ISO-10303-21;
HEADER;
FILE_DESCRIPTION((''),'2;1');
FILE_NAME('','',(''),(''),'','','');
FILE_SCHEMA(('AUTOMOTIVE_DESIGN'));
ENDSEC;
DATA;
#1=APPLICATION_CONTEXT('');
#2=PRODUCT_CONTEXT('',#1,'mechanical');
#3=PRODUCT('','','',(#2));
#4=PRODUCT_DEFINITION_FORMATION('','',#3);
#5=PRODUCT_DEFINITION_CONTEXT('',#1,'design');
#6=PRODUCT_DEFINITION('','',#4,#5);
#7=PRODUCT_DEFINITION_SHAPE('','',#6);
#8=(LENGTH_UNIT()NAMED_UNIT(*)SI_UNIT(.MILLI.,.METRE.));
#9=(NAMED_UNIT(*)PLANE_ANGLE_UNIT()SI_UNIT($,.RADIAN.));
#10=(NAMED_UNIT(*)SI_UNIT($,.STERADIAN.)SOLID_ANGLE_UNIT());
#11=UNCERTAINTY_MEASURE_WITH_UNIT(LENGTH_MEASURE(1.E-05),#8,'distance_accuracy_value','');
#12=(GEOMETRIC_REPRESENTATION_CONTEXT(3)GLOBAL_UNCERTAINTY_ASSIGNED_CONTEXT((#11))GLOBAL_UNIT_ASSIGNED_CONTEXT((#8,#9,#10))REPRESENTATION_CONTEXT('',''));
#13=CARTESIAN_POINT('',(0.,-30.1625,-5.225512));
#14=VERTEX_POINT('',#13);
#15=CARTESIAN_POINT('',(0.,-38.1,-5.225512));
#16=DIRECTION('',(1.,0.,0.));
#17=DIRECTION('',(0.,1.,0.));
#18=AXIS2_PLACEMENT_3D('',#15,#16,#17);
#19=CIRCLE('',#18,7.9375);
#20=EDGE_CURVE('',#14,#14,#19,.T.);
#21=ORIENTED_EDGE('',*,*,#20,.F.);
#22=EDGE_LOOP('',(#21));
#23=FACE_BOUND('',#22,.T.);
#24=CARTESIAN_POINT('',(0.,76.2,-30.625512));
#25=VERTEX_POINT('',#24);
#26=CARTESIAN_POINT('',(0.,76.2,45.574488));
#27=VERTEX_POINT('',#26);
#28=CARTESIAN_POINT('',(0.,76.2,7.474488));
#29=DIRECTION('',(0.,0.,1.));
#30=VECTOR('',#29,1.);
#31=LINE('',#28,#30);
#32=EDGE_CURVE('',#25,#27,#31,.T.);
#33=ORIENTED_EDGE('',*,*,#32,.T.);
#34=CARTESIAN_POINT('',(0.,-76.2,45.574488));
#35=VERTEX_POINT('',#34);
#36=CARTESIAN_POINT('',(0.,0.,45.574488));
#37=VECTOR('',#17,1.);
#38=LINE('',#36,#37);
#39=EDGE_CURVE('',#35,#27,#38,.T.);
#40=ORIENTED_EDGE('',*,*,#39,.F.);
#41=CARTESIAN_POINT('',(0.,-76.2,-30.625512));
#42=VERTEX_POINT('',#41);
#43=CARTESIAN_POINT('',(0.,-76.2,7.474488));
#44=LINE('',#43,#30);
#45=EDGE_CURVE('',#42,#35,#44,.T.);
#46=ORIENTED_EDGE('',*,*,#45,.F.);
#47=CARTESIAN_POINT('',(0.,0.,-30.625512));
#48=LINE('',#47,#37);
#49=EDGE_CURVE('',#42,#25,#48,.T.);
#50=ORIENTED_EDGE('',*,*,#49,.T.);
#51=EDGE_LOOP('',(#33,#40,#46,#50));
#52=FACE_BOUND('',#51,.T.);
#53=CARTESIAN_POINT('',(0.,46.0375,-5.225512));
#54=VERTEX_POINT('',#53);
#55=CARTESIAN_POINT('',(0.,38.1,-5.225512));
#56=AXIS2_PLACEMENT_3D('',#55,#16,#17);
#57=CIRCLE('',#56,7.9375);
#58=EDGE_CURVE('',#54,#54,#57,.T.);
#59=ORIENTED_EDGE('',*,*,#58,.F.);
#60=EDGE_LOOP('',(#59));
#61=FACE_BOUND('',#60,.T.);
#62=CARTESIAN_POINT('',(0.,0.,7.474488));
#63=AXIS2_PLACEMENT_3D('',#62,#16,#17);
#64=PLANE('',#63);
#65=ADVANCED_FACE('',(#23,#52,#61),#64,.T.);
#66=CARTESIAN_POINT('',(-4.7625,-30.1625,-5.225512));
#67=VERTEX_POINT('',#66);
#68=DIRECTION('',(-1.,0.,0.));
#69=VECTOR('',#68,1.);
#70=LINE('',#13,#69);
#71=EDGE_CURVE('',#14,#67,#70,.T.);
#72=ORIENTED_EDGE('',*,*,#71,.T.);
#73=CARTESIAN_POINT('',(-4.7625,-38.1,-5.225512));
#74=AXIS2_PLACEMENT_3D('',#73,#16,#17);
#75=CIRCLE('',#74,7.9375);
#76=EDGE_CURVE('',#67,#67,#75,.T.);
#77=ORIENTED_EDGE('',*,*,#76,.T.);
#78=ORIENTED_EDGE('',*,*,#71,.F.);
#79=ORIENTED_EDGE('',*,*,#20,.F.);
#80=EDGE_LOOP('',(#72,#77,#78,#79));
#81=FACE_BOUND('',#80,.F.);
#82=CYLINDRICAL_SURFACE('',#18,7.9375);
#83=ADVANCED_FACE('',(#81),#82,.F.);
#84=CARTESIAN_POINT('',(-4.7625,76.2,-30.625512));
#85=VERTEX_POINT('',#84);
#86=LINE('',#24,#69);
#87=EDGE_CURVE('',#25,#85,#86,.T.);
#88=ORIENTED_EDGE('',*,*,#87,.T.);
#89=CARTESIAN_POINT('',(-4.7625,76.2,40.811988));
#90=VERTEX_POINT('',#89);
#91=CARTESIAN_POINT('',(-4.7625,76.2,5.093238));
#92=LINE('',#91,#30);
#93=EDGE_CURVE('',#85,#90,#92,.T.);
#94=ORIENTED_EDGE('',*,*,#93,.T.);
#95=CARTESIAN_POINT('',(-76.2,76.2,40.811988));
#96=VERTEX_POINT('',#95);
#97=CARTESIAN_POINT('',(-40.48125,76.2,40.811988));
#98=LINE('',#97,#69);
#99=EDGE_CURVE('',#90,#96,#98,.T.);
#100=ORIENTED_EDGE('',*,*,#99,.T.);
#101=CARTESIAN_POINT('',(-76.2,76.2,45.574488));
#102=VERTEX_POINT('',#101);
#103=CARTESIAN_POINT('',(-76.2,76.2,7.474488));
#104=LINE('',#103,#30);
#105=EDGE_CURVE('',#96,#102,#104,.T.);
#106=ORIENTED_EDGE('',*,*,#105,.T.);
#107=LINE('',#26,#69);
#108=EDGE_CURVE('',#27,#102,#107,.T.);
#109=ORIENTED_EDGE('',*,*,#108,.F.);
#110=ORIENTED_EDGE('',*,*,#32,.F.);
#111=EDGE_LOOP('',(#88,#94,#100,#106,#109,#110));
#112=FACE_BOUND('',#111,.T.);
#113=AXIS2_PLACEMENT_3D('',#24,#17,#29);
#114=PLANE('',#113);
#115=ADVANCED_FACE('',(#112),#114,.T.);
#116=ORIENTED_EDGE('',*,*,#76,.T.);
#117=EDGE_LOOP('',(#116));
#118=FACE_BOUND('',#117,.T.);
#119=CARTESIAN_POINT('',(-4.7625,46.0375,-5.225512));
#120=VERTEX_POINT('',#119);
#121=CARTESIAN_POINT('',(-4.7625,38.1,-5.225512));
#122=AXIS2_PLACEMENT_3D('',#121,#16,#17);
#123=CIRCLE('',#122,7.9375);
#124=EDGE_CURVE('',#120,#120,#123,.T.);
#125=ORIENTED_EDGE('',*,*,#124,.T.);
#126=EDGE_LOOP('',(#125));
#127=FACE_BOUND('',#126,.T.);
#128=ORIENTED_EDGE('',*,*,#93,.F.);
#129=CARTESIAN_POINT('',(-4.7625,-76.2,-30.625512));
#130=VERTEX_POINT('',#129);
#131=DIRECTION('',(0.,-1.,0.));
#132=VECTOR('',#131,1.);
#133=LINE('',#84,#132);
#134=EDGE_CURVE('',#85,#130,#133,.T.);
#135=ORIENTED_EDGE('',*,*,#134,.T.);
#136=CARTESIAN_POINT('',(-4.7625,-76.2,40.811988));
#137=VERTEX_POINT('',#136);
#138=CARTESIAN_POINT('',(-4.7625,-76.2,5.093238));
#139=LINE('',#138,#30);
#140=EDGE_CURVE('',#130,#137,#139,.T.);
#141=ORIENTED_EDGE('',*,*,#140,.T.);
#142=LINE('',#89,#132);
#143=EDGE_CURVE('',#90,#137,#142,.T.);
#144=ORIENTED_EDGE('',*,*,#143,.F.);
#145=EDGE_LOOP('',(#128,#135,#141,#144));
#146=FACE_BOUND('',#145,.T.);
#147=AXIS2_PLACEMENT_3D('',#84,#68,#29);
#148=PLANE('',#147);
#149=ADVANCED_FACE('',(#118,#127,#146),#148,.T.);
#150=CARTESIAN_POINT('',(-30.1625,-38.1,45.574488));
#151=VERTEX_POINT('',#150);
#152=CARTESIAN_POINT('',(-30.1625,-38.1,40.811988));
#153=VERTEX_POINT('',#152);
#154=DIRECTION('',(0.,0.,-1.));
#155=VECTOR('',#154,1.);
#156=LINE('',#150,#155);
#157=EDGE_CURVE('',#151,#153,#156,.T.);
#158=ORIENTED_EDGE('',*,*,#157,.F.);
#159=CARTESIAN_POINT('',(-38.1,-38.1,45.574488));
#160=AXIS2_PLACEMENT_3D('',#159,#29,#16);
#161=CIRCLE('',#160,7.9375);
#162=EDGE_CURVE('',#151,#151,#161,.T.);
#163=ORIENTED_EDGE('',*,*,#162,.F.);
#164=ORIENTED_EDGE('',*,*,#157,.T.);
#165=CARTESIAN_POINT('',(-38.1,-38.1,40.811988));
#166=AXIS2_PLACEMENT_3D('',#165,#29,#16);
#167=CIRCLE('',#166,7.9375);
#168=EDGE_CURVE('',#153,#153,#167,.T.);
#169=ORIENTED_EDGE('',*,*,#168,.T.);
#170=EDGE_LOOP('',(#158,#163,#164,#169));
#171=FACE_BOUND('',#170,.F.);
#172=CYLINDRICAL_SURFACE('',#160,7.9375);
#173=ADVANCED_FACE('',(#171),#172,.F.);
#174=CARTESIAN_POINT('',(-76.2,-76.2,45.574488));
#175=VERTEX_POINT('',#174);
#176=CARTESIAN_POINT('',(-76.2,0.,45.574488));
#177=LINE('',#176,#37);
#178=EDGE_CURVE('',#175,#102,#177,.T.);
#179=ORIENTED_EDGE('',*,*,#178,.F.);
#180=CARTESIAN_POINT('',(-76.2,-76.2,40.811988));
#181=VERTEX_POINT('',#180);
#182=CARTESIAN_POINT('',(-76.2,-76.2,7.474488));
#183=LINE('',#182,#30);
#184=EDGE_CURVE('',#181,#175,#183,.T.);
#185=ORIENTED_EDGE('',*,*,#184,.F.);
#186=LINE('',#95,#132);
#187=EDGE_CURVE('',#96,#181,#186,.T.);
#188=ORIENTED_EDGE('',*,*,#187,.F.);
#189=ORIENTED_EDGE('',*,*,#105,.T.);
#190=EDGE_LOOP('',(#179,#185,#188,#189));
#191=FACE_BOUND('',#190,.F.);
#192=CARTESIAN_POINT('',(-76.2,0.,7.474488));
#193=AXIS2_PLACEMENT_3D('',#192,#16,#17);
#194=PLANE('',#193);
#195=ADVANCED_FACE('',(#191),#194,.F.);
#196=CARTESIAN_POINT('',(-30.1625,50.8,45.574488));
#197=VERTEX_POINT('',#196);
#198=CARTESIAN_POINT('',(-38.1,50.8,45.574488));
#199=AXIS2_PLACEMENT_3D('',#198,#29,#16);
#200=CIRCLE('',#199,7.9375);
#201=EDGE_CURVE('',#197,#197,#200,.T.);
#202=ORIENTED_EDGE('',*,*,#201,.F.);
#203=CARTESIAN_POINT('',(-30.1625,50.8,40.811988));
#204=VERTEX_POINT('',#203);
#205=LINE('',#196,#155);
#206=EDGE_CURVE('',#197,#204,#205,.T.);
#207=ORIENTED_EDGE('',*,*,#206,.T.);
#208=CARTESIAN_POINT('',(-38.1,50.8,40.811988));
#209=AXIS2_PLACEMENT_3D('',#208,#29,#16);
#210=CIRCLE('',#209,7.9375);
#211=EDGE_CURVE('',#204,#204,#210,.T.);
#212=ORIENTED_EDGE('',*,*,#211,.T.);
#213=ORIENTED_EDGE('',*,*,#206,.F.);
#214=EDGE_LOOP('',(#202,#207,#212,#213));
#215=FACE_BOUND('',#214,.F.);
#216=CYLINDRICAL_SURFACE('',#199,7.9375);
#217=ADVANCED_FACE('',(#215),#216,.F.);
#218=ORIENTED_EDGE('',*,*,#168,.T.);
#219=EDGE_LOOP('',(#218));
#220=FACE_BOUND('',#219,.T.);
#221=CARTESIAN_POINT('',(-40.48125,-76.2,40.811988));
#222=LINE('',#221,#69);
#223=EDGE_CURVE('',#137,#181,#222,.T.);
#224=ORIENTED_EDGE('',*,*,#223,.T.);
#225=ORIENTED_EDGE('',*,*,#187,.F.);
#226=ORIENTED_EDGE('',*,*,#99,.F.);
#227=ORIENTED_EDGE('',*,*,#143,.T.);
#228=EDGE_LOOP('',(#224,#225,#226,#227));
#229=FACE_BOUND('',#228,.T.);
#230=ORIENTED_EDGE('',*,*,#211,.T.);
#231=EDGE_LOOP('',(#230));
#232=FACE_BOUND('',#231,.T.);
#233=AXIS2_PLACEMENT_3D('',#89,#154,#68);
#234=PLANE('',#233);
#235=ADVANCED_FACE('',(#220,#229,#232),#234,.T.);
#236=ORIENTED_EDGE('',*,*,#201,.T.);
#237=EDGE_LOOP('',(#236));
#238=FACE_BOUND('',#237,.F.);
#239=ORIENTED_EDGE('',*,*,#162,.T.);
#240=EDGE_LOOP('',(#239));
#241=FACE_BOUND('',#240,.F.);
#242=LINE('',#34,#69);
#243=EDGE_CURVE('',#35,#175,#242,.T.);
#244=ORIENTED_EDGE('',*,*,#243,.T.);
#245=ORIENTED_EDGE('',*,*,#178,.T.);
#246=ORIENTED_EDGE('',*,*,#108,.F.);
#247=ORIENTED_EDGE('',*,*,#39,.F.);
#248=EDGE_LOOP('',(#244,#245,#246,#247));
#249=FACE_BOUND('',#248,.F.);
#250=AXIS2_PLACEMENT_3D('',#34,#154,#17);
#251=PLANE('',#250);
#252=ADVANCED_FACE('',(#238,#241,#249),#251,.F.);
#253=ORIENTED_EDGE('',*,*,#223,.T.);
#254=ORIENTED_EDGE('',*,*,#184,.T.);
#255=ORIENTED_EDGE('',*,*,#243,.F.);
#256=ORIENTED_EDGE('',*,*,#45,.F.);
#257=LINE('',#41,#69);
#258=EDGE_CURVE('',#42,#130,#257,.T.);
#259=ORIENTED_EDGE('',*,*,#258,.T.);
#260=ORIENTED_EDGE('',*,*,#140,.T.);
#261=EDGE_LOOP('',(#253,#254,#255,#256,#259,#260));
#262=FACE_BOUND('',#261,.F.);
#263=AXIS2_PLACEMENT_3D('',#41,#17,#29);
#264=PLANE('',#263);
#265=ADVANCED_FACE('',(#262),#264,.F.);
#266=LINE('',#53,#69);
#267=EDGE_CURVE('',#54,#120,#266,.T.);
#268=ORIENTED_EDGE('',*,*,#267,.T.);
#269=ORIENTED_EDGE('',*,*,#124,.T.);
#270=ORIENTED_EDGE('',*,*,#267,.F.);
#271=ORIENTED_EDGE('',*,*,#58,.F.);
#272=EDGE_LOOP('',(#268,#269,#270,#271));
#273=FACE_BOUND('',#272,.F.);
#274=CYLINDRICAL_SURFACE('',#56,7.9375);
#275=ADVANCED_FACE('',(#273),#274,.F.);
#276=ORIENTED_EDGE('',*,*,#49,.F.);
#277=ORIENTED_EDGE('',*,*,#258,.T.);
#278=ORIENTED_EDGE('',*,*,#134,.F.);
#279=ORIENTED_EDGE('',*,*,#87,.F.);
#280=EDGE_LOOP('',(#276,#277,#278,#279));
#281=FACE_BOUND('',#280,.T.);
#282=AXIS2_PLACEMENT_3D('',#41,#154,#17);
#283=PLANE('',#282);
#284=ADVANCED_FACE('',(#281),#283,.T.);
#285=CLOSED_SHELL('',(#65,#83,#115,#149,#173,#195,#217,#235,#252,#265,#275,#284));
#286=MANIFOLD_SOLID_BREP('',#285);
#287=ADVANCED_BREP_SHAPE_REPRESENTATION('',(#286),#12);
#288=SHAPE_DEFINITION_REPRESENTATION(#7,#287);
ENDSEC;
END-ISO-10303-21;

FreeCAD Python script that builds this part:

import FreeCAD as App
import Part
import Sketcher
Q = App.Units.Quantity


def add_polygon(sketch, points):
    """Adds a closed chain of lines whose ends are joined by coincident constraints."""
    first, n = sketch.GeometryCount, len(points)
    for a, b in zip(points, points[1:] + points[:1]):
        sketch.addGeometry(Part.LineSegment(App.Vector(*a, 0), App.Vector(*b, 0)), False)
    for i in range(n):
        sketch.addConstraint(Sketcher.Constraint("Coincident", first + i, 2, first + (i + 1) % n, 1))

doc = App.newDocument("Part")
params = doc.addObject("Spreadsheet::Sheet", "Params")
for row, (alias, value) in enumerate([
    ("sketch1_width", "6 in"),
    ("sketch1_height", "3 in"),
    ("pad1_length", "3 in"),
    ("sketch2_width", "2.8125 in"),
    ("pocket1_length", "6 in"),
    ("sketch3_diameter", "0.625 in"),
    ("sketch4_diameter", "0.625 in"),
], start=1):
    params.set(f"A{row}", alias)
    params.set(f"B{row}", "=" + value)
    params.setAlias(f"B{row}", alias)

body = doc.addObject("PartDesign::Body", "Body")

# Sketch on YZ plane
sketch1 = body.newObject("Sketcher::SketchObject", "Sketch")
sketch1.AttachmentSupport = (doc.getObject("YZ_Plane"), [""])
sketch1.MapMode = "FlatFace"
add_polygon(sketch1, [(-76, 46), (-76, -31), (76, -31), (76, 46)])  # lines 0-3
sketch1.addConstraint(Sketcher.Constraint("Vertical", 0))
sketch1.addConstraint(Sketcher.Constraint("Horizontal", 1))
sketch1.addConstraint(Sketcher.Constraint("Vertical", 2))
sketch1.addConstraint(Sketcher.Constraint("Horizontal", 3))
sketch1.addConstraint(Sketcher.Constraint("DistanceX", 1, 1, 1, 2, Q("6 in")))
sketch1.addConstraint(Sketcher.Constraint("DistanceY", 0, 2, 0, 1, Q("3 in")))
sketch1.addConstraint(Sketcher.Constraint("DistanceX", 0, 2, -1, 1, Q("3 in")))
sketch1.addConstraint(Sketcher.Constraint("DistanceY", -1, 1, 2, 2, Q("45.574488 mm")))
sketch1.setExpression("Constraints[8]", "Params.sketch1_width")
sketch1.setExpression("Constraints[9]", "Params.sketch1_height")
pad1 = body.newObject("PartDesign::Pad", "Pad")
pad1.Profile = sketch1
pad1.setExpression("Length", "Params.pad1_length")
pad1.Reversed = True

# Sketch on XZ plane
sketch2 = body.newObject("Sketcher::SketchObject", "Sketch001")
sketch2.AttachmentSupport = (doc.getObject("XZ_Plane"), [""])
sketch2.MapMode = "FlatFace"
sketch2.AttachmentOffset = App.Placement(App.Vector(0, 0, -3 * 25.4), App.Rotation())
add_polygon(sketch2, [(-5, 41), (-5, -31), (-76, -31), (-76, 41)])  # lines 0-3
sketch2.addConstraint(Sketcher.Constraint("Vertical", 0))
sketch2.addConstraint(Sketcher.Constraint("Horizontal", 1))
sketch2.addConstraint(Sketcher.Constraint("Vertical", 2))
sketch2.addConstraint(Sketcher.Constraint("Horizontal", 3))
sketch2.addConstraint(Sketcher.Constraint("Equal", 3, 0))
sketch2.addConstraint(Sketcher.Constraint("DistanceX", 1, 2, -1, 1, Q("3 in")))
sketch2.addConstraint(Sketcher.Constraint("DistanceX", 1, 2, 1, 1, Q("2.8125 in")))
sketch2.addConstraint(Sketcher.Constraint("DistanceY", 0, 2, -1, 1, Q("30.625512 mm")))
sketch2.setExpression("Constraints[10]", "Params.sketch2_width")
pocket1 = body.newObject("PartDesign::Pocket", "Pocket")
pocket1.Profile = sketch2
pocket1.setExpression("Length", "Params.pocket1_length")
pocket1.Reversed = True

# Sketch on YZ plane
sketch3 = body.newObject("Sketcher::SketchObject", "Sketch002")
sketch3.AttachmentSupport = (doc.getObject("YZ_Plane"), [""])
sketch3.MapMode = "FlatFace"
sketch3.addGeometry(Part.Circle(App.Vector(-38, -5, 0), App.Vector(0, 0, 1), 8), False)
sketch3.addGeometry(Part.Circle(App.Vector(38, -5, 0), App.Vector(0, 0, 1), 8), False)
sketch3.addConstraint(Sketcher.Constraint("Equal", 0, 1))
sketch3.addConstraint(Sketcher.Constraint("Symmetric", 0, 3, 1, 3, -2))
sketch3.addConstraint(Sketcher.Constraint("Diameter", 0, Q("0.625 in")))
sketch3.addConstraint(Sketcher.Constraint("DistanceX", 0, 3, 1, 3, Q("3 in")))
sketch3.addConstraint(Sketcher.Constraint("DistanceY", 0, 3, -1, 1, Q("5.225512 mm")))
sketch3.setExpression("Constraints[2]", "Params.sketch3_diameter")
pocket2 = body.newObject("PartDesign::Pocket", "Pocket001")
pocket2.Profile = sketch3
pocket2.Type = "ThroughAll"

# Sketch on XY plane
sketch4 = body.newObject("Sketcher::SketchObject", "Sketch003")
sketch4.AttachmentSupport = (doc.getObject("XY_Plane"), [""])
sketch4.MapMode = "FlatFace"
sketch4.AttachmentOffset = App.Placement(App.Vector(0, 0, 45.574488), App.Rotation())
sketch4.addGeometry(Part.Circle(App.Vector(-38, 51, 0), App.Vector(0, 0, 1), 8), False)
sketch4.addGeometry(Part.Circle(App.Vector(-38, -38, 0), App.Vector(0, 0, 1), 8), False)
sketch4.addConstraint(Sketcher.Constraint("Equal", 0, 1))
sketch4.addConstraint(Sketcher.Constraint("Vertical", 0, 3, 1, 3))
sketch4.addConstraint(Sketcher.Constraint("Diameter", 0, Q("0.625 in")))
sketch4.addConstraint(Sketcher.Constraint("DistanceY", -1, 1, 0, 3, Q("2 in")))
sketch4.addConstraint(Sketcher.Constraint("DistanceX", 0, 3, -1, 1, Q("1.5 in")))
sketch4.addConstraint(Sketcher.Constraint("DistanceY", 1, 3, -1, 1, Q("1.5 in")))
sketch4.setExpression("Constraints[2]", "Params.sketch4_diameter")
pocket3 = body.newObject("PartDesign::Pocket", "Pocket002")
pocket3.Profile = sketch4
pocket3.Type = "ThroughAll"

doc.recompute()
